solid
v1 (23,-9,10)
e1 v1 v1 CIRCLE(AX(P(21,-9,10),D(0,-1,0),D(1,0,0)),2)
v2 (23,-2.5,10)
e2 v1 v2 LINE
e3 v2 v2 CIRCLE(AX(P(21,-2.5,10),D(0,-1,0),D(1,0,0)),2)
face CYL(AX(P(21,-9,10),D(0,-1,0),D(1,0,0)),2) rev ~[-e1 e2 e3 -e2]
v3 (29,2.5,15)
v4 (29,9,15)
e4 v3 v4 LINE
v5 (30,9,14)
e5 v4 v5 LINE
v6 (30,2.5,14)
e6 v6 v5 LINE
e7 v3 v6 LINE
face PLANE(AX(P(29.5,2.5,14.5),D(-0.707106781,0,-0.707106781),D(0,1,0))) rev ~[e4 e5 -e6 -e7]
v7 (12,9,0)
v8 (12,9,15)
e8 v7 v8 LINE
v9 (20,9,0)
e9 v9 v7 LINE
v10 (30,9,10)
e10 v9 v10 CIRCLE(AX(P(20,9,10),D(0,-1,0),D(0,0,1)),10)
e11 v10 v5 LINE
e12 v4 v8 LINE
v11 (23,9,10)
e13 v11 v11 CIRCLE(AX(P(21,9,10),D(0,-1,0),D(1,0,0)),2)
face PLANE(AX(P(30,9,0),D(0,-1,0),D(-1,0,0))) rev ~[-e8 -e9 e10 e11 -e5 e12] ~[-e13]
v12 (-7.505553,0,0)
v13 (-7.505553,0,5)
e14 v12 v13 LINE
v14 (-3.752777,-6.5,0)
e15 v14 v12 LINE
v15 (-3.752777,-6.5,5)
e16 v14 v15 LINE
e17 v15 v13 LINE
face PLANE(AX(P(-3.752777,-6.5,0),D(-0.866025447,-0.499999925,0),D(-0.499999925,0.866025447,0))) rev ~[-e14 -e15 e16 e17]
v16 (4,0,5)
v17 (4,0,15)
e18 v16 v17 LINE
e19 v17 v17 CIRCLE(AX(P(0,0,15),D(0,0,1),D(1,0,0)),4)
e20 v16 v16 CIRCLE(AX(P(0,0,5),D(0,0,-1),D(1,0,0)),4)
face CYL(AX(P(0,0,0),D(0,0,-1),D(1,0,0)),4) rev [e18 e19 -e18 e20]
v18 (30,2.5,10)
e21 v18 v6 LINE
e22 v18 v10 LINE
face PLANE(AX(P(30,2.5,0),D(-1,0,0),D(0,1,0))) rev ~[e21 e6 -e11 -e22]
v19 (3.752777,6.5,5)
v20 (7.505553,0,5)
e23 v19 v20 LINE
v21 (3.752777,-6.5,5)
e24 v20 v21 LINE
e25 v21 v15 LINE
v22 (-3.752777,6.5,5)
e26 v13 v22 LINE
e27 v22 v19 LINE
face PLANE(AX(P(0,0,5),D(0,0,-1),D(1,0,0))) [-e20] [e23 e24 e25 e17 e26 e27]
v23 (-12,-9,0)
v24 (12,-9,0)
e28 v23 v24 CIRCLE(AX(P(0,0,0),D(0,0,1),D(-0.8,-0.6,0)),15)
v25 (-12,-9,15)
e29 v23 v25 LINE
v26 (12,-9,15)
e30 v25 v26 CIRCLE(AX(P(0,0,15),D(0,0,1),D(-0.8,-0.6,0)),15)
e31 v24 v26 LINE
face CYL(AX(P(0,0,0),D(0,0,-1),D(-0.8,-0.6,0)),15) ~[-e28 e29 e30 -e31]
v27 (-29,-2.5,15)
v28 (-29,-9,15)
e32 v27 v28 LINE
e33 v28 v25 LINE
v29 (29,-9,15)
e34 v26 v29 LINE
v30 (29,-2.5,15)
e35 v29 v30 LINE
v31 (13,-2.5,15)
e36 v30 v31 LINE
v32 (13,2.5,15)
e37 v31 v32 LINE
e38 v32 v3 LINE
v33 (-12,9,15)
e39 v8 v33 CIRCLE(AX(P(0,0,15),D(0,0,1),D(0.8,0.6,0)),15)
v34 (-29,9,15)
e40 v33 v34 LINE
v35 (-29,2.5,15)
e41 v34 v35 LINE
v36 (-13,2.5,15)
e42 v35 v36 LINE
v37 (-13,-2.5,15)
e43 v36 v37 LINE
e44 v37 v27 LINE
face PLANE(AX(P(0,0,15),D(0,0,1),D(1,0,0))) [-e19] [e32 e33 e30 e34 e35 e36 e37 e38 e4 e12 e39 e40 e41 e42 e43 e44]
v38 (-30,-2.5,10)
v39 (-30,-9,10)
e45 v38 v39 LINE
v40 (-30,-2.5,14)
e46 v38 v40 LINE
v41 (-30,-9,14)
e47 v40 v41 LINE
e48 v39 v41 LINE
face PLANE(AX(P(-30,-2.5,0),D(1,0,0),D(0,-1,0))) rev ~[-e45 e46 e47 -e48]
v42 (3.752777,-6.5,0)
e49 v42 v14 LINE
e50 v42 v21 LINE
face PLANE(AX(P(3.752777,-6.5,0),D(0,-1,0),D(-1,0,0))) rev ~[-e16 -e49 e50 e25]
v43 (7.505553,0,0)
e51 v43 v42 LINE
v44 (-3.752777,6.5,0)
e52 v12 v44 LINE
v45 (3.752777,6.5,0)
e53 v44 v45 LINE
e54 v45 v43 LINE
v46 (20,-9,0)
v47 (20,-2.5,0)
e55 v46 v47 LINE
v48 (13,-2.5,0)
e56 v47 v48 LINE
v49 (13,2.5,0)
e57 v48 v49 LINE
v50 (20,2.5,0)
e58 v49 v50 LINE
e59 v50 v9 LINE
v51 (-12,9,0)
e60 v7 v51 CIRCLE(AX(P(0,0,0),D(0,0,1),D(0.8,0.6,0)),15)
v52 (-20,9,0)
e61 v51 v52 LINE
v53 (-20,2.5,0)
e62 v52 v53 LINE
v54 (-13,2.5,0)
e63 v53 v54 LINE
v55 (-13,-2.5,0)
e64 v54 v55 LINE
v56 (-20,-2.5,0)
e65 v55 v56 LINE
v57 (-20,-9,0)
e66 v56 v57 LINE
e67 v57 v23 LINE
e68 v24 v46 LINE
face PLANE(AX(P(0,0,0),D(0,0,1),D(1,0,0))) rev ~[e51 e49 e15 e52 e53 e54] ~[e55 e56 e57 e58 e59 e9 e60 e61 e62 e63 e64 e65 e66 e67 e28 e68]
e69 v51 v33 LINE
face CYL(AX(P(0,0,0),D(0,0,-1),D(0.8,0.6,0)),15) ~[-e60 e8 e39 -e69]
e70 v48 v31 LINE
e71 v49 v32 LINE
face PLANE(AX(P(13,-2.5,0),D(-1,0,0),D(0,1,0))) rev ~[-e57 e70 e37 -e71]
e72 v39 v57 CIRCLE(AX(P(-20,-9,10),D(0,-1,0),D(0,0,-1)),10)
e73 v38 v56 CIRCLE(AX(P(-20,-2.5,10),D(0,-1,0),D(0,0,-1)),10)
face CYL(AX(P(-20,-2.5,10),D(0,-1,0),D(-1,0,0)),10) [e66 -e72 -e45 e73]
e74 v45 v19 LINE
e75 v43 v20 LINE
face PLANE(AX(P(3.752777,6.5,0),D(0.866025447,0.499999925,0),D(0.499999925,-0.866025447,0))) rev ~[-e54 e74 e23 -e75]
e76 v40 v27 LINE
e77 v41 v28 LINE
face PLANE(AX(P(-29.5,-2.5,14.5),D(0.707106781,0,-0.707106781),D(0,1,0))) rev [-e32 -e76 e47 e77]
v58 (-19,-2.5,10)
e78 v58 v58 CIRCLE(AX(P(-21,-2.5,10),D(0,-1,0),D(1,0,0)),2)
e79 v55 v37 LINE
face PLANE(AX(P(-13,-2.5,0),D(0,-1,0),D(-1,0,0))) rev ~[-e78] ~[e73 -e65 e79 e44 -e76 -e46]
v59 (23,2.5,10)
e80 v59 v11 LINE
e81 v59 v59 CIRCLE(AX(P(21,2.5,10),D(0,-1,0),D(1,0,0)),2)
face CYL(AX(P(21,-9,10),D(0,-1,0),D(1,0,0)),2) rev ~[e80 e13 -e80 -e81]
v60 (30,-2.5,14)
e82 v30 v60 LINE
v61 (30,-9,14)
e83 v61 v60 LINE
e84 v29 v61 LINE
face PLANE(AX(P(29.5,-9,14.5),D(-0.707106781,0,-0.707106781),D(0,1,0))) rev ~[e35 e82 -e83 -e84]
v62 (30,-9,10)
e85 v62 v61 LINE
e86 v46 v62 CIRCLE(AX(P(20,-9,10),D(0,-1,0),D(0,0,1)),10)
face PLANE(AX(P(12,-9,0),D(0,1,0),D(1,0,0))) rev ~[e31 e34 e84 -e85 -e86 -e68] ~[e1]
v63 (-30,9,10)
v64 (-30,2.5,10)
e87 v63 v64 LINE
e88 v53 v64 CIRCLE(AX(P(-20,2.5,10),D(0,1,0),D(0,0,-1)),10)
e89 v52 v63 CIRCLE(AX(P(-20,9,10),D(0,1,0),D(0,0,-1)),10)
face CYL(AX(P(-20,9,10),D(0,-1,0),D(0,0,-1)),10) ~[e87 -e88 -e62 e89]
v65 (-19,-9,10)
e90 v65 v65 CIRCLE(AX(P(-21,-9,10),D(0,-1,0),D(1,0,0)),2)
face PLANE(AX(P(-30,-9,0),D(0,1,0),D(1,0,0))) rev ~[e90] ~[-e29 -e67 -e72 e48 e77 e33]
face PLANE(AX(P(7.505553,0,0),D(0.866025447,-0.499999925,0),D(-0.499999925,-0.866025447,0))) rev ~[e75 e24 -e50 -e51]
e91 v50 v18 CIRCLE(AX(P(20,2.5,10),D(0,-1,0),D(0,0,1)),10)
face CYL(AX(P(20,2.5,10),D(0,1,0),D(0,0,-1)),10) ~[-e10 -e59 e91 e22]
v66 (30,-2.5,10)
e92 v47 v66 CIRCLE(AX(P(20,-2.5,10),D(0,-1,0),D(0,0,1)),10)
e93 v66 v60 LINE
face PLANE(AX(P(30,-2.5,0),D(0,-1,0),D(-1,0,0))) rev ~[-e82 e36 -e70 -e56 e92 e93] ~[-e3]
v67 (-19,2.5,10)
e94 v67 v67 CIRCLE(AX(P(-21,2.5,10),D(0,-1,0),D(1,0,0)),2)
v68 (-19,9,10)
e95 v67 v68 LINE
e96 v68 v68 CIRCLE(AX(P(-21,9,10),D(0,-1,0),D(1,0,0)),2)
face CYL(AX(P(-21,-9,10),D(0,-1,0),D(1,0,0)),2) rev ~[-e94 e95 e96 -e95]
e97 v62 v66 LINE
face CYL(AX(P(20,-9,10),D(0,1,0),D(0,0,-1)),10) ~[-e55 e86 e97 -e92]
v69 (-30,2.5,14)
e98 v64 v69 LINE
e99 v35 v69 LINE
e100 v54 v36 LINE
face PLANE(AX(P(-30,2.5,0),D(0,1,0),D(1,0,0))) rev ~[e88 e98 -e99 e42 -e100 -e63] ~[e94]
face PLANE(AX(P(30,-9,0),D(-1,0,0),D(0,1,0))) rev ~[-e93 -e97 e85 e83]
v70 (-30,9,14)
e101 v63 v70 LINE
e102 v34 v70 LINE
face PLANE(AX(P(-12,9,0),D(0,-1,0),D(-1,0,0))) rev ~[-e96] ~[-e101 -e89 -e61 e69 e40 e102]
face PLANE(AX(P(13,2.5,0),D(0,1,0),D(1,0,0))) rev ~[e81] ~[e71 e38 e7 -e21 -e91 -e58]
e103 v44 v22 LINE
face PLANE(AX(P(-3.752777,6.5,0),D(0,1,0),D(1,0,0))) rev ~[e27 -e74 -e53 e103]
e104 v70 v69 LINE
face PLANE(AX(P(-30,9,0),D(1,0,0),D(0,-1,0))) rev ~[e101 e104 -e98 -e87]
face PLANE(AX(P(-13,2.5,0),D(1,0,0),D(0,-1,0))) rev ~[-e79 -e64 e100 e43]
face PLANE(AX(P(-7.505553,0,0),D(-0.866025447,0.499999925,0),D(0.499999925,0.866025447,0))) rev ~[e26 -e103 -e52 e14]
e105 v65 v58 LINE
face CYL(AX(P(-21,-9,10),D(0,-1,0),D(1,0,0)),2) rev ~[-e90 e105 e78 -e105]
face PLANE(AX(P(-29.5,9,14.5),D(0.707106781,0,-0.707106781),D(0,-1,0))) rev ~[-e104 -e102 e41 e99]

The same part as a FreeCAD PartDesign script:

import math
import FreeCAD as App
import Part
import Sketcher
from FreeCAD import Vector
Q = App.Units.Quantity


def edges_at(feature, points):
    """Names of the edges that pass closest to the given points."""
    edges = feature.Shape.Edges
    near = lambda p: min(range(len(edges)), key=lambda i: edges[i].distToShape(Part.Vertex(*p))[0])
    return sorted({f"Edge{near(p) + 1}" for p in points})

doc = App.newDocument("Part")
params = doc.addObject("Spreadsheet::Sheet", "Params")
for row, (alias, value) in enumerate([
    ("sketch1_diameter", "8 mm"),
    ("sketch1_radius", "15 mm"),
    ("sketch1_width", "18 mm"),
    ("sketch1_width2", "17 mm"),
    ("sketch1_height", "5 mm"),
    ("pad1_length", "15 mm"),
    ("pocket1_length", "5 mm"),
    ("sketch3_diameter", "4 mm"),
    ("fillet_radius", "10 mm"),
    ("chamfer_size", "1 mm"),
], start=1):
    params.set(f"A{row}", alias)
    params.set(f"B{row}", "=" + value)
    params.setAlias(f"B{row}", alias)

body = doc.addObject("PartDesign::Body", "Body")

# Sketch on XY plane
sketch1 = doc.addObject("Sketcher::SketchObject", "Sketch")
body.addObject(sketch1)
sketch1.AttachmentSupport = (doc.XY_Plane, [""])
sketch1.MapMode = "FlatFace"
sketch1.addGeometry([
    Part.LineSegment(Vector(-30, -9, 0), Vector(-12, -9, 0)),  # 0
    Part.ArcOfCircle(Part.Circle(Vector(0, 0, 0), Vector(0, 0, 1), 15), math.radians(-143), math.radians(-37)),  # 1
    Part.LineSegment(Vector(12, -9, 0), Vector(30, -9, 0)),  # 2
    Part.LineSegment(Vector(30, -9, 0), Vector(30, -2.5, 0)),  # 3
    Part.LineSegment(Vector(30, -2.5, 0), Vector(13, -2.5, 0)),  # 4
    Part.LineSegment(Vector(13, -2.5, 0), Vector(13, 2.5, 0)),  # 5
    Part.LineSegment(Vector(13, 2.5, 0), Vector(30, 2.5, 0)),  # 6
    Part.LineSegment(Vector(30, 2.5, 0), Vector(30, 9, 0)),  # 7
    Part.LineSegment(Vector(30, 9, 0), Vector(12, 9, 0)),  # 8
    Part.ArcOfCircle(Part.Circle(Vector(0, 0, 0), Vector(0, 0, 1), 15), math.radians(37), math.radians(143)),  # 9
    Part.LineSegment(Vector(-12, 9, 0), Vector(-30, 9, 0)),  # 10
    Part.LineSegment(Vector(-30, 9, 0), Vector(-30, 2.5, 0)),  # 11
    Part.LineSegment(Vector(-30, 2.5, 0), Vector(-13, 2.5, 0)),  # 12
    Part.LineSegment(Vector(-13, 2.5, 0), Vector(-13, -2.5, 0)),  # 13
    Part.LineSegment(Vector(-13, -2.5, 0), Vector(-30, -2.5, 0)),  # 14
    Part.LineSegment(Vector(-30, -2.5, 0), Vector(-30, -9, 0)),  # 15
    Part.Circle(Vector(0, 0, 0), Vector(0, 0, 1), 4),  # 16
], False)
sketch1.addConstraint([
    Sketcher.Constraint("Coincident", 0, 2, 1, 1),
    Sketcher.Constraint("Coincident", 1, 2, 2, 1),
    Sketcher.Constraint("Coincident", 2, 2, 3, 1),
    Sketcher.Constraint("Coincident", 3, 2, 4, 1),
    Sketcher.Constraint("Coincident", 4, 2, 5, 1),
    Sketcher.Constraint("Coincident", 5, 2, 6, 1),
    Sketcher.Constraint("Coincident", 6, 2, 7, 1),
    Sketcher.Constraint("Coincident", 7, 2, 8, 1),
    Sketcher.Constraint("Coincident", 8, 2, 9, 1),
    Sketcher.Constraint("Coincident", 9, 2, 10, 1),
    Sketcher.Constraint("Coincident", 10, 2, 11, 1),
    Sketcher.Constraint("Coincident", 11, 2, 12, 1),
    Sketcher.Constraint("Coincident", 12, 2, 13, 1),
    Sketcher.Constraint("Coincident", 13, 2, 14, 1),
    Sketcher.Constraint("Coincident", 14, 2, 15, 1),
    Sketcher.Constraint("Coincident", 15, 2, 0, 1),
    Sketcher.Constraint("Horizontal", 0),
    Sketcher.Constraint("Horizontal", 2),
    Sketcher.Constraint("Vertical", 3),
    Sketcher.Constraint("Horizontal", 4),
    Sketcher.Constraint("Vertical", 5),
    Sketcher.Constraint("Horizontal", 6),
    Sketcher.Constraint("Vertical", 7),
    Sketcher.Constraint("Horizontal", 8),
    Sketcher.Constraint("Horizontal", 10),
    Sketcher.Constraint("Vertical", 11),
    Sketcher.Constraint("Horizontal", 12),
    Sketcher.Constraint("Vertical", 13),
    Sketcher.Constraint("Horizontal", 14),
    Sketcher.Constraint("Vertical", 15),
    Sketcher.Constraint("Coincident", 1, 3, -1, 1),
    Sketcher.Constraint("Coincident", 9, 3, -1, 1),
    Sketcher.Constraint("Coincident", 16, 3, -1, 1),
    Sketcher.Constraint("Equal", 1, 9),
    Sketcher.Constraint("Symmetric", 2, 2, 10, 2, -1, 1),
    Sketcher.Constraint("Symmetric", 4, 2, 12, 2, -1, 1),
    Sketcher.Constraint("Symmetric", 6, 2, 14, 2, -1, 1),
    Sketcher.Constraint("Symmetric", 7, 2, 10, 2, -2),
    Sketcher.Constraint("Horizontal", 0, 2, 1, 2),
    Sketcher.Constraint("Horizontal", 6, 2, 11, 2),
    Sketcher.Constraint("Diameter", 16, Q("8 mm")),
    Sketcher.Constraint("Radius", 1, Q("15 mm")),
    Sketcher.Constraint("DistanceX", 0, 1, 0, 2, Q("18 mm")),
    Sketcher.Constraint("DistanceX", 4, 2, 4, 1, Q("17 mm")),
    Sketcher.Constraint("DistanceY", 5, 1, 5, 2, Q("5 mm")),
    Sketcher.Constraint("DistanceY", 3, 1, 3, 2, Q("6.5 mm")),
])
sketch1.setExpression("Constraints[40]", "Params.sketch1_diameter")
sketch1.setExpression("Constraints[41]", "Params.sketch1_radius")
sketch1.setExpression("Constraints[42]", "Params.sketch1_width")
sketch1.setExpression("Constraints[43]", "Params.sketch1_width2")
sketch1.setExpression("Constraints[44]", "Params.sketch1_height")
pad1 = doc.addObject("PartDesign::Pad", "Pad")
body.addObject(pad1)
pad1.Profile = sketch1
pad1.setExpression("Length", "Params.pad1_length")

# Sketch on XY plane
sketch2 = doc.addObject("Sketcher::SketchObject", "Sketch001")
body.addObject(sketch2)
sketch2.AttachmentSupport = (doc.XY_Plane, [""])
sketch2.MapMode = "FlatFace"
sketch2.addGeometry([
    Part.LineSegment(Vector(4, 6, 0), Vector(8, 0, 0)),  # 0
    Part.LineSegment(Vector(8, 0, 0), Vector(4, -6, 0)),  # 1
    Part.LineSegment(Vector(4, -6, 0), Vector(-4, -6, 0)),  # 2
    Part.LineSegment(Vector(-4, -6, 0), Vector(-8, 0, 0)),  # 3
    Part.LineSegment(Vector(-8, 0, 0), Vector(-4, 6, 0)),  # 4
    Part.LineSegment(Vector(-4, 6, 0), Vector(4, 6, 0)),  # 5
], False)
sketch2.addConstraint([
    Sketcher.Constraint("Coincident", 0, 2, 1, 1),
    Sketcher.Constraint("Coincident", 1, 2, 2, 1),
    Sketcher.Constraint("Coincident", 2, 2, 3, 1),
    Sketcher.Constraint("Coincident", 3, 2, 4, 1),
    Sketcher.Constraint("Coincident", 4, 2, 5, 1),
    Sketcher.Constraint("Coincident", 5, 2, 0, 1),
    Sketcher.Constraint("Horizontal", 2),
    Sketcher.Constraint("Horizontal", 5),
    Sketcher.Constraint("Symmetric", 0, 2, 3, 2, -1, 1),
    Sketcher.Constraint("Symmetric", 1, 2, 4, 2, -1, 1),
    Sketcher.Constraint("PointOnObject", 0, 2, -1),
    Sketcher.Constraint("Parallel", 0, 3),
    Sketcher.Constraint("Vertical", 2, 2, 4, 2),
    Sketcher.Constraint("Angle", 0, Q("-60.000005 deg")),
    Sketcher.Constraint("DistanceY", 2, 2, 4, 2, Q("13 mm")),
    Sketcher.Constraint("DistanceX", 2, 2, 2, 1, Q("7.505554 mm")),
])
pocket1 = doc.addObject("PartDesign::Pocket", "Pocket")
body.addObject(pocket1)
pocket1.Profile = sketch2
pocket1.setExpression("Length", "Params.pocket1_length")
pocket1.Reversed = True

# Sketch on XZ plane
sketch3 = doc.addObject("Sketcher::SketchObject", "Sketch002")
body.addObject(sketch3)
sketch3.AttachmentSupport = (doc.XZ_Plane, [""])
sketch3.MapMode = "FlatFace"
sketch3.AttachmentOffset = App.Placement(Vector(0, 0, 9), App.Rotation())
sketch3.addGeometry([
    Part.Circle(Vector(-21, 10, 0), Vector(0, 0, 1), 2),
    Part.Circle(Vector(21, 10, 0), Vector(0, 0, 1), 2),
], False)
sketch3.addConstraint([
    Sketcher.Constraint("Equal", 0, 1),
    Sketcher.Constraint("Symmetric", 0, 3, 1, 3, -2),
    Sketcher.Constraint("Diameter", 0, Q("4 mm")),
    Sketcher.Constraint("DistanceX", 0, 3, -1, 1, Q("21 mm")),
    Sketcher.Constraint("DistanceY", -1, 1, 0, 3, Q("10 mm")),
])
sketch3.setExpression("Constraints[2]", "Params.sketch3_diameter")
pocket2 = doc.addObject("PartDesign::Pocket", "Pocket001")
body.addObject(pocket2)
pocket2.Profile = sketch3
pocket2.Type = "ThroughAll"
doc.recompute()

fillet = doc.addObject("PartDesign::Fillet", "Fillet")
body.addObject(fillet)
fillet.Base = (pocket2, edges_at(pocket2, [
    (-30, -5.75, 0),
    (-30, 5.75, 0),
    (30, -5.75, 0),
    (30, 5.75, 0),
]))
fillet.setExpression("Radius", "Params.fillet_radius")
doc.recompute()

chamfer = doc.addObject("PartDesign::Chamfer", "Chamfer")
body.addObject(chamfer)
chamfer.Base = (fillet, edges_at(fillet, [
    (-30, 5.75, 15),
    (-30, -5.75, 15),
    (30, 5.75, 15),
    (30, -5.75, 15),
]))
chamfer.setExpression("Size", "Params.chamfer_size")

doc.recompute()
